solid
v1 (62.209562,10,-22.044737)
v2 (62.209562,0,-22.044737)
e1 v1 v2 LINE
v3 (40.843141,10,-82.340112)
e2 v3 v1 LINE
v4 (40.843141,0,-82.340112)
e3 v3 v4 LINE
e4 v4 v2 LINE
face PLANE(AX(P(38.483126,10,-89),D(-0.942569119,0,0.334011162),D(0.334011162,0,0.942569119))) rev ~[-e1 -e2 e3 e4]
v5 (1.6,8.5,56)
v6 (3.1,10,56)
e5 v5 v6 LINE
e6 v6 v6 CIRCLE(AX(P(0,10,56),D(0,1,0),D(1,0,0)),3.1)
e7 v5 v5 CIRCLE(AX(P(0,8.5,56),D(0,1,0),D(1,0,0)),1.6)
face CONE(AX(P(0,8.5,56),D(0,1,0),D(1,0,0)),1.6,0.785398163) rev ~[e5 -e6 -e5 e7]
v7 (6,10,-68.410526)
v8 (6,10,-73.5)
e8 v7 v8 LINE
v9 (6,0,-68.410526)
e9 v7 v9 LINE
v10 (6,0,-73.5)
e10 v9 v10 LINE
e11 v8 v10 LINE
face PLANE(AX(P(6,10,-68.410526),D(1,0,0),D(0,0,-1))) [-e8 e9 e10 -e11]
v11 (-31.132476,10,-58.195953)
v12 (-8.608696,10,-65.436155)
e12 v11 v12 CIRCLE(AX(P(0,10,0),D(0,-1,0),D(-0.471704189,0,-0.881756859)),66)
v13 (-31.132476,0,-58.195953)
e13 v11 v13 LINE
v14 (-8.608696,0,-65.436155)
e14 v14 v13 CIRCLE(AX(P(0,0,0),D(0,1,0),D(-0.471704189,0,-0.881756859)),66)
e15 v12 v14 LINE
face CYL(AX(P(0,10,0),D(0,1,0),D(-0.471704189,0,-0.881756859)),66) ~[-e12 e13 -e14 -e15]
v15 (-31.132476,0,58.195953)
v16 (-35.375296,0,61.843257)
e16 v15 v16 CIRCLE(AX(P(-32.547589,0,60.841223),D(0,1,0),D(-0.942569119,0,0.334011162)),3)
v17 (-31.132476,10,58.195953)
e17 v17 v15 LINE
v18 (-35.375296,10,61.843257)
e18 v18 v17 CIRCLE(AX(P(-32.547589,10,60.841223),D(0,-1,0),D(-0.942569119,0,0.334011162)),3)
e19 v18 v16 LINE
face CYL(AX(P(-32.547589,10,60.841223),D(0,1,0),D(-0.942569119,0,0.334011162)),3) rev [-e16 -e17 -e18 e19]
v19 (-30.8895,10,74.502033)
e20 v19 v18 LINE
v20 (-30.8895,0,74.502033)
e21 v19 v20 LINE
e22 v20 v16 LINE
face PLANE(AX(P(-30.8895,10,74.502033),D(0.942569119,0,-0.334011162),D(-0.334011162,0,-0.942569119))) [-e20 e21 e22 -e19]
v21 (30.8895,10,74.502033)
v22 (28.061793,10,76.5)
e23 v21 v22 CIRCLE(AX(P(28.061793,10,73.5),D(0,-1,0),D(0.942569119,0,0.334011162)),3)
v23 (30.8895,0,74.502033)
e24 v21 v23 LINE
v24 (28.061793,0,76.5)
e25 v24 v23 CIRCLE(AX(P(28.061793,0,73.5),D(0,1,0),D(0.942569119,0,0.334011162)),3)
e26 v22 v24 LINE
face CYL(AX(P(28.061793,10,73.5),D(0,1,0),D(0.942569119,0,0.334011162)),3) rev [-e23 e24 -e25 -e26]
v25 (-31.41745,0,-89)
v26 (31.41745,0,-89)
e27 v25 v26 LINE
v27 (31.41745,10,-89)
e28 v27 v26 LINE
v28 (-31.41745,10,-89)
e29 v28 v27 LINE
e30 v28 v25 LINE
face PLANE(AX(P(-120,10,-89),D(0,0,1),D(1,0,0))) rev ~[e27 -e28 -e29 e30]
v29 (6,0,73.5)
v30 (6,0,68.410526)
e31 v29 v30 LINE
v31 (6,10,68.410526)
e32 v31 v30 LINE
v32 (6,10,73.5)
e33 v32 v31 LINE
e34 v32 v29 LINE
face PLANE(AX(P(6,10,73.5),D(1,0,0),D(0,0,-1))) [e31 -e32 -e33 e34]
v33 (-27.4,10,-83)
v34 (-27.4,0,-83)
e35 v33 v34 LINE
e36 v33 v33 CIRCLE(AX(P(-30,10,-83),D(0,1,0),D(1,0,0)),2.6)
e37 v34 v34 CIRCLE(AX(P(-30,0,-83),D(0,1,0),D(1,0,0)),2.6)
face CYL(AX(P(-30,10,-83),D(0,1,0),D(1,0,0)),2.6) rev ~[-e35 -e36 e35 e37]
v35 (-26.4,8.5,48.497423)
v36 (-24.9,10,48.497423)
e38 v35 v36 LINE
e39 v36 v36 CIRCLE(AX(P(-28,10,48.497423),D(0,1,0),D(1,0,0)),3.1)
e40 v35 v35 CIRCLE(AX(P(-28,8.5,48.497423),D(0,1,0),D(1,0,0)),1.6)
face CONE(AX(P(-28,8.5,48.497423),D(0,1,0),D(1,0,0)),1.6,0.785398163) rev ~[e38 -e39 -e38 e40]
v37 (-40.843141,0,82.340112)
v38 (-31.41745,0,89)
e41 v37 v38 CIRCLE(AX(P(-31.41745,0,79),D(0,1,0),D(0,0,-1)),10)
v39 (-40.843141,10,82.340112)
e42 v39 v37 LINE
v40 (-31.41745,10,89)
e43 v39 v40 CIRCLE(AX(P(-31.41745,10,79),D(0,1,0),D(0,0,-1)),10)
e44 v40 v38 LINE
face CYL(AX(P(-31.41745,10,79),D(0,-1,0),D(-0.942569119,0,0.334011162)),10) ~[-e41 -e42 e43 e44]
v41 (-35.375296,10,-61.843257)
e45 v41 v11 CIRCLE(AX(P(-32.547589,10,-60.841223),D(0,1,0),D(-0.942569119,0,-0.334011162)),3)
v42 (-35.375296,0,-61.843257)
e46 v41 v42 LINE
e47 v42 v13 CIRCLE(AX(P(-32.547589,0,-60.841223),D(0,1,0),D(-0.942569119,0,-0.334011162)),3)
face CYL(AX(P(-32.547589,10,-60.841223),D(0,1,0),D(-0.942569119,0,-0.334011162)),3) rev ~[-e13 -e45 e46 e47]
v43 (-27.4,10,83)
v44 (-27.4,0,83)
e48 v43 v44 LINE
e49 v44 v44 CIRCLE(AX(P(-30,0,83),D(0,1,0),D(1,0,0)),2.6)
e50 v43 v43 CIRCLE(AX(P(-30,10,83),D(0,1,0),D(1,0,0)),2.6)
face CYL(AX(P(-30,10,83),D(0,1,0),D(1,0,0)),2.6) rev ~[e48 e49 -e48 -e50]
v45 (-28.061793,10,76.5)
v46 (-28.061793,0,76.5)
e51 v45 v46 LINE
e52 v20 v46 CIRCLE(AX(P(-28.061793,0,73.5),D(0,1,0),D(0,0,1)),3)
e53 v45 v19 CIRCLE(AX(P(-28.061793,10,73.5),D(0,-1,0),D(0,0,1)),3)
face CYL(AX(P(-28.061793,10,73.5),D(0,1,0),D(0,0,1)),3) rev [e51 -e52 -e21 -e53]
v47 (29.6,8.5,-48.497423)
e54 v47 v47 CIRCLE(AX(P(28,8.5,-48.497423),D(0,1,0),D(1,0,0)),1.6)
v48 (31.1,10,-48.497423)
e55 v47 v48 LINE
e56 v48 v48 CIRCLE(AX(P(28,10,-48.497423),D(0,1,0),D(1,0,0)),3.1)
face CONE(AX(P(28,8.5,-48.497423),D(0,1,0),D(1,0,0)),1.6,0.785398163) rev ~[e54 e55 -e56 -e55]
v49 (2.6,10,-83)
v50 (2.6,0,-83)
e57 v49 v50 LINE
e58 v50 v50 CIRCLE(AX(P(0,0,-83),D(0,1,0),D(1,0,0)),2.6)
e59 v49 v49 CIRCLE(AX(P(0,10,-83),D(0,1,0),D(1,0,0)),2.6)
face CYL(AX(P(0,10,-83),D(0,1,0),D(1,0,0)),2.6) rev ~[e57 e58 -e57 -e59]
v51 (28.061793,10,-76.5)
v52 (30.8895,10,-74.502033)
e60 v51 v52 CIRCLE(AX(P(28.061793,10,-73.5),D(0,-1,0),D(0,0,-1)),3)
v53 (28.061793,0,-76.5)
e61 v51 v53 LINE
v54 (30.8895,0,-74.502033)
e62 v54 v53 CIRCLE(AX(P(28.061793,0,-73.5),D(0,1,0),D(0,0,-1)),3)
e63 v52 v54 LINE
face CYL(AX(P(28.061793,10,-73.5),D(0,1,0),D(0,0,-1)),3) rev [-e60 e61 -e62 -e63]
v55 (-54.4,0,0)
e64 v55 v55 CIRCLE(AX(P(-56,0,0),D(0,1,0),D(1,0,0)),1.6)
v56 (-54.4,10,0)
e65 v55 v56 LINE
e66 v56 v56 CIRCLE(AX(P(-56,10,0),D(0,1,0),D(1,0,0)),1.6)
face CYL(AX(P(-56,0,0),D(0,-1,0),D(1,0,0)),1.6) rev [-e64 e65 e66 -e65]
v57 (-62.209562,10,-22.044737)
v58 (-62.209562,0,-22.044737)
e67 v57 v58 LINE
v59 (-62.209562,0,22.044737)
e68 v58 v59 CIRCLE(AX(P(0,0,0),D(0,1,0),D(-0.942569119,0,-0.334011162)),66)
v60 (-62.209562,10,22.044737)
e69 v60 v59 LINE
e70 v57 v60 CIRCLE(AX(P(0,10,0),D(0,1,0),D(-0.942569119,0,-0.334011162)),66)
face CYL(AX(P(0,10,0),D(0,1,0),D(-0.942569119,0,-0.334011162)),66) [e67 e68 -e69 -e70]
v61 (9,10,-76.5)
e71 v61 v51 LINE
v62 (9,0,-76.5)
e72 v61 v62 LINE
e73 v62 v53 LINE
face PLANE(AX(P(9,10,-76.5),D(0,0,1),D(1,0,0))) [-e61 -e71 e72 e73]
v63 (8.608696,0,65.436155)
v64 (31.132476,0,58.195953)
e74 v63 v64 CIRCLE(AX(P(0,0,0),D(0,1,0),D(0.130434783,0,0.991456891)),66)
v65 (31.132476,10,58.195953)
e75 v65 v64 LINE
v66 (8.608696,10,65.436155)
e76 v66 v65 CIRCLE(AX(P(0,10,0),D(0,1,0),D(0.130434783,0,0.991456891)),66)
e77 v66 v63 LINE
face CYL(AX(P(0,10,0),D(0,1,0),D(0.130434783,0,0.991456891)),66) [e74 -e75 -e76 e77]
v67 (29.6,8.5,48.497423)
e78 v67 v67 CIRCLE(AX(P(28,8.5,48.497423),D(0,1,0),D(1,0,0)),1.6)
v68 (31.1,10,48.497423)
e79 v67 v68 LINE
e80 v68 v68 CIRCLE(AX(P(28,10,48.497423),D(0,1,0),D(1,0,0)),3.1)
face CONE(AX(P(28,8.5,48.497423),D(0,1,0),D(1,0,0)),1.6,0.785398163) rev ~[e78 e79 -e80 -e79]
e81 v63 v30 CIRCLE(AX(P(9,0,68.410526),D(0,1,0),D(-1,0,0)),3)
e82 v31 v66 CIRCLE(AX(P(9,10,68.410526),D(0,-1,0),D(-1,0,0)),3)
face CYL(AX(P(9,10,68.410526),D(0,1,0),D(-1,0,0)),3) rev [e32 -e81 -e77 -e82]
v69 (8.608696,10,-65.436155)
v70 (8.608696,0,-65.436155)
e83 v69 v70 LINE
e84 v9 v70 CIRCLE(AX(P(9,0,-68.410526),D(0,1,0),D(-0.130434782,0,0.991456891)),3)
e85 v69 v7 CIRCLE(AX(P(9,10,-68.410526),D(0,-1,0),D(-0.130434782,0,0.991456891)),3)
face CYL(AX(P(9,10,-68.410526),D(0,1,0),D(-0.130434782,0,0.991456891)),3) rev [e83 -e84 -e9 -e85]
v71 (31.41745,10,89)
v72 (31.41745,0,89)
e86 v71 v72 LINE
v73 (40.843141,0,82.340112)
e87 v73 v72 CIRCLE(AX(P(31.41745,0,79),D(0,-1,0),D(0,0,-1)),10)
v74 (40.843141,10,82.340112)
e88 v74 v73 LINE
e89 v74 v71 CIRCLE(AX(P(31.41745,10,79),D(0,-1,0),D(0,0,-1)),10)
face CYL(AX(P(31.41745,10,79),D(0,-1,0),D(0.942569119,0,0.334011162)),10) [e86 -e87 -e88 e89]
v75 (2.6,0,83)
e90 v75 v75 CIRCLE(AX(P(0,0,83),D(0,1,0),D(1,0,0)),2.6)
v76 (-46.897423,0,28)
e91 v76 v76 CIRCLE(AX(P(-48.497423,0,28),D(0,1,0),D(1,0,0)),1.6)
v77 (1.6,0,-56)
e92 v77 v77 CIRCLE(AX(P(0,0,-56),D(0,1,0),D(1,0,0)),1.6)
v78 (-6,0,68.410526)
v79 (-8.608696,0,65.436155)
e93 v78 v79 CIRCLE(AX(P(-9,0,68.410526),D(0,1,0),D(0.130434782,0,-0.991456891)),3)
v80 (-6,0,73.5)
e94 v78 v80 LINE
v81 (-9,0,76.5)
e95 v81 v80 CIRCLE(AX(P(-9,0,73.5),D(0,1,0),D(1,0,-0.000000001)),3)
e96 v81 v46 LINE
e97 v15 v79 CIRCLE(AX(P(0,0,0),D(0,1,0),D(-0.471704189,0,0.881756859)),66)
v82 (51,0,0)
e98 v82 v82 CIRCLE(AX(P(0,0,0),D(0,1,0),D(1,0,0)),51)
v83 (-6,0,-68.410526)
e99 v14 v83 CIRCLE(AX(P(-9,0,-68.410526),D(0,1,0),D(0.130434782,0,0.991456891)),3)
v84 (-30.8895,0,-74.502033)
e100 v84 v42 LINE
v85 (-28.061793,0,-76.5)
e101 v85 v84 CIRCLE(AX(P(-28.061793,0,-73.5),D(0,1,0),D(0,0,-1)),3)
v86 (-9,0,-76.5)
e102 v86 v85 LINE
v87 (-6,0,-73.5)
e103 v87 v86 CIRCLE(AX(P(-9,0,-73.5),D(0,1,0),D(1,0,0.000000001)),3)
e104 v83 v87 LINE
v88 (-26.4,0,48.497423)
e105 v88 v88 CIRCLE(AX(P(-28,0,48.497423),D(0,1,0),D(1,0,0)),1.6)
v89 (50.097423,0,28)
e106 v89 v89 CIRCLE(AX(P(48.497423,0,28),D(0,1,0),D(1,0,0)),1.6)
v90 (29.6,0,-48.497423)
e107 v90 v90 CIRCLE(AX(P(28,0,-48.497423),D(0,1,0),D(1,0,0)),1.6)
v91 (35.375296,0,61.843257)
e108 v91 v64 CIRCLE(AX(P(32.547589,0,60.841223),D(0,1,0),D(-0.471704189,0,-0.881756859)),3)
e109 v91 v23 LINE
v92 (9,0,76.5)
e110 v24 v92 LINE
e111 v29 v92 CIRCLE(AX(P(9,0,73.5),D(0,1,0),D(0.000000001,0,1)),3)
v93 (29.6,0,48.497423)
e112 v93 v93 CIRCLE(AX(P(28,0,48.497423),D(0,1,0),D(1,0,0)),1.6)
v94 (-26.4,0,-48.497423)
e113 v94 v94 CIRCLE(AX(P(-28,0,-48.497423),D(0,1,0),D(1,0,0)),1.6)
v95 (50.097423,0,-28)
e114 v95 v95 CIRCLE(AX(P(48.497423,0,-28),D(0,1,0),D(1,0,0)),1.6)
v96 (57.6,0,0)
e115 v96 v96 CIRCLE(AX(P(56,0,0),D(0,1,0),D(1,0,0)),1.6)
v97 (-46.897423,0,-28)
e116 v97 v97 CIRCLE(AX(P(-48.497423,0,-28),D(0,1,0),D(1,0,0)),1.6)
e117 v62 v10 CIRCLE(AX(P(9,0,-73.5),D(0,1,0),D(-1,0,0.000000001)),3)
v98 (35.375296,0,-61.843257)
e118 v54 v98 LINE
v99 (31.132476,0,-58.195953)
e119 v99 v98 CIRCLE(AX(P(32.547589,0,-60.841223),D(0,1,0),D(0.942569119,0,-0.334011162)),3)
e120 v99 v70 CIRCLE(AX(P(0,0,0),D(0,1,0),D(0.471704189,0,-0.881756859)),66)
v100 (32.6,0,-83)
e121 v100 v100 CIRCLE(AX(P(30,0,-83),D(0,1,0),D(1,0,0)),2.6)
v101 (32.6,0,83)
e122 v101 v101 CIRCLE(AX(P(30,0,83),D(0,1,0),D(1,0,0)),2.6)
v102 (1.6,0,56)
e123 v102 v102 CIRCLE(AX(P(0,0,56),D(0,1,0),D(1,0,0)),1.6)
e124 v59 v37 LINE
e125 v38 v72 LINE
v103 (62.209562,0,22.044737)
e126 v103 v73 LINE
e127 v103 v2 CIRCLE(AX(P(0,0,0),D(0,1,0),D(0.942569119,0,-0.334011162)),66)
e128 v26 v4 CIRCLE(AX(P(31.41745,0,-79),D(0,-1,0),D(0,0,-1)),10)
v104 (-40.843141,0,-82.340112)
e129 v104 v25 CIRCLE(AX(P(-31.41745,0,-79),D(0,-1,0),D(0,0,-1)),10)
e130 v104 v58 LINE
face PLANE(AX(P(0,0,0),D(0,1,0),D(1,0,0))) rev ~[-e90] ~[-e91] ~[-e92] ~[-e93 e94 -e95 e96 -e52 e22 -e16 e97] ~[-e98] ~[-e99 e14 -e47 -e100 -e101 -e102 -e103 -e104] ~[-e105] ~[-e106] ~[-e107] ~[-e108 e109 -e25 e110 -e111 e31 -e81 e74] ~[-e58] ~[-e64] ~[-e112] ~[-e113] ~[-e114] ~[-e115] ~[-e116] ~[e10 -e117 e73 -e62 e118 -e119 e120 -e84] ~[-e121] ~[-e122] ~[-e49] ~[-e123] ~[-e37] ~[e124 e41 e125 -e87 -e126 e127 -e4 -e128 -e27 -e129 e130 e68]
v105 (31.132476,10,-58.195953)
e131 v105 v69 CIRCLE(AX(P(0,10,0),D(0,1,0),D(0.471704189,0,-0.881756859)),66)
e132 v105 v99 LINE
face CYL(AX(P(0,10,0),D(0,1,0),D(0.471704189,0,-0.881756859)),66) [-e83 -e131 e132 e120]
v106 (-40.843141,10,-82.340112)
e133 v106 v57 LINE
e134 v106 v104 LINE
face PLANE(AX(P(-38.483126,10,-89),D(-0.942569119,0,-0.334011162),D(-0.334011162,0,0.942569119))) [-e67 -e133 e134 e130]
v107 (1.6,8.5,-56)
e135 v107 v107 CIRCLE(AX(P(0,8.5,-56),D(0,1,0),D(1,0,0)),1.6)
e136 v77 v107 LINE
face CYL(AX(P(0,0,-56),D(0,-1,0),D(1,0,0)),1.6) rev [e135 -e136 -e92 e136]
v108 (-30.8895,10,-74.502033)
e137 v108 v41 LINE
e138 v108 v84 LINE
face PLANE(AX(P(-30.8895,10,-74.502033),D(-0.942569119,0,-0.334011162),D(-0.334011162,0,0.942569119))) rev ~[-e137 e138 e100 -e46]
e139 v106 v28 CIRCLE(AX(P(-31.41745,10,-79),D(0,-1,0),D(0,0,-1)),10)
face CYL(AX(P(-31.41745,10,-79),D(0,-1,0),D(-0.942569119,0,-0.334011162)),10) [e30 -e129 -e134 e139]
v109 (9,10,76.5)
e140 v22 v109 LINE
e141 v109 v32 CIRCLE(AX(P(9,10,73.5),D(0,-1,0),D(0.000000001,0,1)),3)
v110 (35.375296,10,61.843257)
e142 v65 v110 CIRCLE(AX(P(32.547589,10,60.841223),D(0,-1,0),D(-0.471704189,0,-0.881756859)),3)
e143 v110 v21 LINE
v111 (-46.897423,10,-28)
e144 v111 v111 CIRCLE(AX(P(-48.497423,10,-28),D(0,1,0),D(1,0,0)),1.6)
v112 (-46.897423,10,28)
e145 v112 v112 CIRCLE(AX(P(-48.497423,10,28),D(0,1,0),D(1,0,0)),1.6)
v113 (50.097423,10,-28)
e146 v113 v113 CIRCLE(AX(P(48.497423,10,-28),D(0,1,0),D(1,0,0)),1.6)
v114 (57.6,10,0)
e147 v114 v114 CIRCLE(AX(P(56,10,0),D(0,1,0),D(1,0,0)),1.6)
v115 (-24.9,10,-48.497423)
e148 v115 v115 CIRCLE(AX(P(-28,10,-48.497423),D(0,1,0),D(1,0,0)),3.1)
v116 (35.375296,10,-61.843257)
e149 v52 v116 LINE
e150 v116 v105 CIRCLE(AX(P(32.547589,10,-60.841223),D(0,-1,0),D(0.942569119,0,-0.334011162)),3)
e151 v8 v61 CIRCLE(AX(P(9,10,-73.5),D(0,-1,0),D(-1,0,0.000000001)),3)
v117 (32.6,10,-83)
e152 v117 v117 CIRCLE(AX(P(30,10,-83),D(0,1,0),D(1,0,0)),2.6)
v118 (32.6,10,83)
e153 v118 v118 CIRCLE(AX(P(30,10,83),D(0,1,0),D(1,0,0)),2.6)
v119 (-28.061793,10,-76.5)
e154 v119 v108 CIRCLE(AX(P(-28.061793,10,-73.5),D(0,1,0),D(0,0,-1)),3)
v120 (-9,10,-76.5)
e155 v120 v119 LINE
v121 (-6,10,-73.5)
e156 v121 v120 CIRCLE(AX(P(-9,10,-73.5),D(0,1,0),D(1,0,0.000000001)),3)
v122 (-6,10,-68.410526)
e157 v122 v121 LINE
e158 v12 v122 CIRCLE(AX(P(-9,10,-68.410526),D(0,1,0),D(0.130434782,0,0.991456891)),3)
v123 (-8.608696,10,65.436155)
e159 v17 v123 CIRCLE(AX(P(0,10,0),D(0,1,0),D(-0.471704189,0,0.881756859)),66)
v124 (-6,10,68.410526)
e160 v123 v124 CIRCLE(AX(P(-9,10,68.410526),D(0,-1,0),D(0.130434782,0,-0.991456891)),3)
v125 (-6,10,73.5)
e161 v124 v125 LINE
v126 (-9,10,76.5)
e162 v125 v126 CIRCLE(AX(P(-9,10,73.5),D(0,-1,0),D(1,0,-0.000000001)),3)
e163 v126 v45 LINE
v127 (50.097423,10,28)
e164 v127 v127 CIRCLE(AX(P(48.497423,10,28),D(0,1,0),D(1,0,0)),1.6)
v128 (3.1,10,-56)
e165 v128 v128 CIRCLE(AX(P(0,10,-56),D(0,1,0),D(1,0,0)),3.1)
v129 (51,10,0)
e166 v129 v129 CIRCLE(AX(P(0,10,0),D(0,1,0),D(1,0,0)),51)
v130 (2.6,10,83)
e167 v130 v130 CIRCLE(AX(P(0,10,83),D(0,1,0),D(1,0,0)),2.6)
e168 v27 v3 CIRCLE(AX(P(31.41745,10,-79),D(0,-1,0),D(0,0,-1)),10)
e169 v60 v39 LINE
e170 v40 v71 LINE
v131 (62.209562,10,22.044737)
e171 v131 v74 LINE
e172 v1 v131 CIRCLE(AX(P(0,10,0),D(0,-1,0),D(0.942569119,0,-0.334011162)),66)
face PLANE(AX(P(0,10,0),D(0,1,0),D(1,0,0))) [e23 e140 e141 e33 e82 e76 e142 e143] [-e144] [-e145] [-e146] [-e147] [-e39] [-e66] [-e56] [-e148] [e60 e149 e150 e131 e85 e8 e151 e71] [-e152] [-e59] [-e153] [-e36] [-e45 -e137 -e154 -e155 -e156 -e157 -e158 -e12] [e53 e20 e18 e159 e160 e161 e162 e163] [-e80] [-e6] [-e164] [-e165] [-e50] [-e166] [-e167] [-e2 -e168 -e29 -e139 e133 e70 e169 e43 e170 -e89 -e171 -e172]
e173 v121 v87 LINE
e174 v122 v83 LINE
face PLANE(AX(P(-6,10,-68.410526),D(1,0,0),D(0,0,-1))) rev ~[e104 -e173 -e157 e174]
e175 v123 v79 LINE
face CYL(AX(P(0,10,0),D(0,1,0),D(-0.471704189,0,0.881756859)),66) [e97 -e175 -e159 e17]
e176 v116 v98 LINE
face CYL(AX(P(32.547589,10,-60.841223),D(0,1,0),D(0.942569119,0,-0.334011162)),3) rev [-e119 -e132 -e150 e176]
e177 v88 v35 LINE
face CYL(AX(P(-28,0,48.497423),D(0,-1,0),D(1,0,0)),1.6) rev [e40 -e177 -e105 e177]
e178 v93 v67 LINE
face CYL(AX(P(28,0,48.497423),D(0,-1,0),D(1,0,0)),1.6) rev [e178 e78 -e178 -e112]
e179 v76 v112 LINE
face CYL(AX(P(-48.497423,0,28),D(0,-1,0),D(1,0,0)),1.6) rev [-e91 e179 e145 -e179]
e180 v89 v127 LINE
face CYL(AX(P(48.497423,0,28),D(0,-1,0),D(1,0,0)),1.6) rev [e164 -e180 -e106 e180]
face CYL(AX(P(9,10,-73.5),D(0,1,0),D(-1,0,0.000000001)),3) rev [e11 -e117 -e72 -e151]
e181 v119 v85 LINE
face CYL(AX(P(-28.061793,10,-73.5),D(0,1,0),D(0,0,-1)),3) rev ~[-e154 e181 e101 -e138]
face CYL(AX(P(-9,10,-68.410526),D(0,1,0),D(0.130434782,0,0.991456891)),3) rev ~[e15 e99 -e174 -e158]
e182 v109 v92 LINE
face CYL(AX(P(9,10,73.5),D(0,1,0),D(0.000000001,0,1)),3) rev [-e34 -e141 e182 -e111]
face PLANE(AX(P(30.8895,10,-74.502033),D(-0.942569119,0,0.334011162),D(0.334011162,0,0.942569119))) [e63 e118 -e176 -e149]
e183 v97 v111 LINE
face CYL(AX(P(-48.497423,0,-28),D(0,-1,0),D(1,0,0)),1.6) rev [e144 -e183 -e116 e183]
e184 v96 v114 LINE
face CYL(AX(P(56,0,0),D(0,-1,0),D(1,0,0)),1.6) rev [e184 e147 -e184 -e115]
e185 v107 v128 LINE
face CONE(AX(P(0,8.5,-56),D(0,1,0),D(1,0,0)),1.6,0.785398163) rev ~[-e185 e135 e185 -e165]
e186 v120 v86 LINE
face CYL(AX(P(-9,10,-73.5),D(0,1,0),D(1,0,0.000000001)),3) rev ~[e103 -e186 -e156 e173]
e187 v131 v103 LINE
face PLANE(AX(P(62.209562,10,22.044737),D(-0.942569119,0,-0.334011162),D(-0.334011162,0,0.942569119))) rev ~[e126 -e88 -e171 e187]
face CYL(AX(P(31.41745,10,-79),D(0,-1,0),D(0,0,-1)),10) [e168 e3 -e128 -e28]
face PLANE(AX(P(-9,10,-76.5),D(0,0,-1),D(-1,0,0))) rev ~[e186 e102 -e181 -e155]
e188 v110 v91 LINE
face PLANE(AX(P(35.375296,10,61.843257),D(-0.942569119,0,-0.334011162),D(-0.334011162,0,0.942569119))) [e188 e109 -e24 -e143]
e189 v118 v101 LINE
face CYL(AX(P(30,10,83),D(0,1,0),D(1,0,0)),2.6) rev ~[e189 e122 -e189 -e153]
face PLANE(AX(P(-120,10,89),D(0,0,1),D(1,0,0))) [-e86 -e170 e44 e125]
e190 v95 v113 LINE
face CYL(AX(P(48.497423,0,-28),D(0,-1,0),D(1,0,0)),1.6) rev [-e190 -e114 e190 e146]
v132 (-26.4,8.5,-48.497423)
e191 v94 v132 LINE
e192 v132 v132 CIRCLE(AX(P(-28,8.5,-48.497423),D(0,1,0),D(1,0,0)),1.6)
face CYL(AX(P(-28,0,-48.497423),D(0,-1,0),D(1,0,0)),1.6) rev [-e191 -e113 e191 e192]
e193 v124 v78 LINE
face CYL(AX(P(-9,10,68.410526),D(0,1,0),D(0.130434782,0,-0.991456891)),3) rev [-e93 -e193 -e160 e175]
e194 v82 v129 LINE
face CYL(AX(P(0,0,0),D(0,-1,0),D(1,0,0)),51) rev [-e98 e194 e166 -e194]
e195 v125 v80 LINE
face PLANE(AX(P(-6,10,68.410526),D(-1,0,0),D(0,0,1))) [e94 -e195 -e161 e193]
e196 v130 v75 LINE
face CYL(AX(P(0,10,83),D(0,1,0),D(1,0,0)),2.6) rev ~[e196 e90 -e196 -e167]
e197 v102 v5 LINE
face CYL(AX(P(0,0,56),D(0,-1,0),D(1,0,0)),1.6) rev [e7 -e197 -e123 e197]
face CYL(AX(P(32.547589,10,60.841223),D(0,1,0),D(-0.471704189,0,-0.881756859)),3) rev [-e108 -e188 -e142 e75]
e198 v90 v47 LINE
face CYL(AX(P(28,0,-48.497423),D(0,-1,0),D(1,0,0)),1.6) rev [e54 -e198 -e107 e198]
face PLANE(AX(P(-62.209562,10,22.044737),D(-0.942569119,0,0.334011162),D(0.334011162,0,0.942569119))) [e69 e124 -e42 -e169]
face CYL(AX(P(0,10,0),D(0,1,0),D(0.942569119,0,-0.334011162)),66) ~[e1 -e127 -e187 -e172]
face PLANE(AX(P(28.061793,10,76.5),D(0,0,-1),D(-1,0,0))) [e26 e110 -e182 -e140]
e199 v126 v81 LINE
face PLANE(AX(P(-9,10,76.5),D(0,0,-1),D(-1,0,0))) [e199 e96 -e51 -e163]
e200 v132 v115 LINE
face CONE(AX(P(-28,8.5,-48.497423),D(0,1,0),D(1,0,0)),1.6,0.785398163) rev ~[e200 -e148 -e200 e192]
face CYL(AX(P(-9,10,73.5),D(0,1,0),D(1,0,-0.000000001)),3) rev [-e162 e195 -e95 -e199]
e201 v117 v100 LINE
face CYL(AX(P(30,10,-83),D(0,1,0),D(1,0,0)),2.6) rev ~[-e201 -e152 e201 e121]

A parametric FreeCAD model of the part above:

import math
import FreeCAD as App
import Part
import Sketcher
Q = App.Units.Quantity


def edges_at(feature, points):
    """Names of the edges that pass closest to the given points."""
    edges = feature.Shape.Edges
    near = lambda p: min(range(len(edges)), key=lambda i: edges[i].distToShape(Part.Vertex(*p))[0])
    return sorted({f"Edge{near(p) + 1}" for p in points})


def add_polygon(sketch, points):
    """Adds a closed chain of lines whose ends are joined by coincident constraints."""
    first, n = sketch.GeometryCount, len(points)
    for a, b in zip(points, points[1:] + points[:1]):
        sketch.addGeometry(Part.LineSegment(App.Vector(*a, 0), App.Vector(*b, 0)), False)
    for i in range(n):
        sketch.addConstraint(Sketcher.Constraint("Coincident", first + i, 2, first + (i + 1) % n, 1))

doc = App.newDocument("Part")
params = doc.addObject("Spreadsheet::Sheet", "Params")
for row, (alias, value) in enumerate([
    ("sketch1_diameter", "102 mm"),
    ("sketch1_diameter2", "4.2 mm"),
    ("sketch1_diameter3", "3.2 mm"),
    ("sketch1_diameter4", "2.5 mm"),
    ("sketch1_width", "240 mm"),
    ("pad1_length", "10 mm"),
    ("sketch2_height", "115 mm"),
    ("sketch2_height2", "95 mm"),
    ("sketch3_diameter", "5.2 mm"),
    ("sketch3_width", "240 mm"),
    ("sketch3_height", "1 mm"),
    ("sketch4_radius", "66 mm"),
    ("sketch4_height", "178 mm"),
    ("fillet_radius", "10 mm"),
    ("sketch5_radius", "3 mm"),
    ("sketch5_radius2", "66 mm"),
    ("chamfer_size", "1.5 mm"),
], start=1):
    params.set(f"A{row}", alias)
    params.set(f"B{row}", "=" + value)
    params.setAlias(f"B{row}", alias)

body = doc.addObject("PartDesign::Body", "Body")

# Sketch on XZ plane
sketch1 = body.newObject("Sketcher::SketchObject", "Sketch")
sketch1.AttachmentSupport = (doc.getObject("XZ_Plane"), [""])
sketch1.MapMode = "FlatFace"
add_polygon(sketch1, [(-120, -90), (-120, 90), (120, 90), (120, -90)])  # lines 0-3
sketch1.addGeometry(Part.Circle(App.Vector(-70, 85, 0), App.Vector(0, 0, 1), 2.1), False)  # 4
sketch1.addGeometry(Part.Circle(App.Vector(-70, 65, 0), App.Vector(0, 0, 1), 2.1), False)  # 5
sketch1.addGeometry(Part.Circle(App.Vector(-50, 85, 0), App.Vector(0, 0, 1), 2.1), False)  # 6
sketch1.addGeometry(Part.Circle(App.Vector(-50, 65, 0), App.Vector(0, 0, 1), 2.1), False)  # 7
sketch1.addGeometry(Part.Circle(App.Vector(-28, 48.5, 0), App.Vector(0, 0, 1), 1.6), False)  # 8
sketch1.addGeometry(Part.Circle(App.Vector(-112, 30, 0), App.Vector(0, 0, 1), 1.2), False)  # 9
sketch1.addGeometry(Part.Circle(App.Vector(-112, 10, 0), App.Vector(0, 0, 1), 1.2), False)  # 10
sketch1.addGeometry(Part.Circle(App.Vector(-48.5, 28, 0), App.Vector(0, 0, 1), 1.6), False)  # 11
sketch1.addGeometry(Part.Circle(App.Vector(50, 85, 0), App.Vector(0, 0, 1), 2.1), False)  # 12
sketch1.addGeometry(Part.Circle(App.Vector(0, 56, 0), App.Vector(0, 0, 1), 1.6), False)  # 13
sketch1.addGeometry(Part.Circle(App.Vector(28, 48.5, 0), App.Vector(0, 0, 1), 1.6), False)  # 14
sketch1.addGeometry(Part.Circle(App.Vector(50, 65, 0), App.Vector(0, 0, 1), 2.1), False)  # 15
sketch1.addGeometry(Part.Circle(App.Vector(70, 85, 0), App.Vector(0, 0, 1), 2.1), False)  # 16
sketch1.addGeometry(Part.Circle(App.Vector(70, 65, 0), App.Vector(0, 0, 1), 2.1), False)  # 17
sketch1.addGeometry(Part.Circle(App.Vector(48.5, 28, 0), App.Vector(0, 0, 1), 1.6), False)  # 18
sketch1.addGeometry(Part.Circle(App.Vector(112, 30, 0), App.Vector(0, 0, 1), 1.2), False)  # 19
sketch1.addGeometry(Part.Circle(App.Vector(112, 10, 0), App.Vector(0, 0, 1), 1.2), False)  # 20
sketch1.addGeometry(Part.Circle(App.Vector(-112, -10, 0), App.Vector(0, 0, 1), 1.2), False)  # 21
sketch1.addGeometry(Part.Circle(App.Vector(-112, -30, 0), App.Vector(0, 0, 1), 1.2), False)  # 22
sketch1.addGeometry(Part.Circle(App.Vector(-56, 0, 0), App.Vector(0, 0, 1), 1.6), False)  # 23
sketch1.addGeometry(Part.Circle(App.Vector(-48.5, -28, 0), App.Vector(0, 0, 1), 1.6), False)  # 24
sketch1.addGeometry(Part.Circle(App.Vector(-70, -65, 0), App.Vector(0, 0, 1), 2.1), False)  # 25
sketch1.addGeometry(Part.Circle(App.Vector(-70, -85, 0), App.Vector(0, 0, 1), 2.1), False)  # 26
sketch1.addGeometry(Part.Circle(App.Vector(-50, -65, 0), App.Vector(0, 0, 1), 2.1), False)  # 27
sketch1.addGeometry(Part.Circle(App.Vector(-28, -48.5, 0), App.Vector(0, 0, 1), 1.6), False)  # 28
sketch1.addGeometry(Part.Circle(App.Vector(-50, -85, 0), App.Vector(0, 0, 1), 2.1), False)  # 29
sketch1.addGeometry(Part.Circle(App.Vector(0, 0, 0), App.Vector(0, 0, 1), 51), False)  # 30
sketch1.addGeometry(Part.Circle(App.Vector(56, 0, 0), App.Vector(0, 0, 1), 1.6), False)  # 31
sketch1.addGeometry(Part.Circle(App.Vector(48.5, -28, 0), App.Vector(0, 0, 1), 1.6), False)  # 32
sketch1.addGeometry(Part.Circle(App.Vector(112, -10, 0), App.Vector(0, 0, 1), 1.2), False)  # 33
sketch1.addGeometry(Part.Circle(App.Vector(112, -30, 0), App.Vector(0, 0, 1), 1.2), False)  # 34
sketch1.addGeometry(Part.Circle(App.Vector(28, -48.5, 0), App.Vector(0, 0, 1), 1.6), False)  # 35
sketch1.addGeometry(Part.Circle(App.Vector(0, -56, 0), App.Vector(0, 0, 1), 1.6), False)  # 36
sketch1.addGeometry(Part.Circle(App.Vector(50, -65, 0), App.Vector(0, 0, 1), 2.1), False)  # 37
sketch1.addGeometry(Part.Circle(App.Vector(50, -85, 0), App.Vector(0, 0, 1), 2.1), False)  # 38
sketch1.addGeometry(Part.Circle(App.Vector(70, -65, 0), App.Vector(0, 0, 1), 2.1), False)  # 39
sketch1.addGeometry(Part.Circle(App.Vector(70, -85, 0), App.Vector(0, 0, 1), 2.1), False)  # 40
sketch1.addConstraint(Sketcher.Constraint("Vertical", 0))
sketch1.addConstraint(Sketcher.Constraint("Horizontal", 1))
sketch1.addConstraint(Sketcher.Constraint("Vertical", 2))
sketch1.addConstraint(Sketcher.Constraint("Horizontal", 3))
sketch1.addConstraint(Sketcher.Constraint("Coincident", 30, 3, -1, 1))
sketch1.addConstraint(Sketcher.Constraint("Equal", 4, 5))
sketch1.addConstraint(Sketcher.Constraint("Equal", 5, 6))
sketch1.addConstraint(Sketcher.Constraint("Equal", 6, 7))
sketch1.addConstraint(Sketcher.Constraint("Equal", 9, 10))
sketch1.addConstraint(Sketcher.Constraint("Equal", 8, 11))
sketch1.addConstraint(Sketcher.Constraint("Equal", 7, 12))
sketch1.addConstraint(Sketcher.Constraint("Equal", 11, 13))
sketch1.addConstraint(Sketcher.Constraint("Equal", 13, 14))
sketch1.addConstraint(Sketcher.Constraint("Equal", 12, 15))
sketch1.addConstraint(Sketcher.Constraint("Equal", 15, 16))
sketch1.addConstraint(Sketcher.Constraint("Equal", 16, 17))
sketch1.addConstraint(Sketcher.Constraint("Equal", 14, 18))
sketch1.addConstraint(Sketcher.Constraint("Equal", 10, 19))
sketch1.addConstraint(Sketcher.Constraint("Equal", 19, 20))
sketch1.addConstraint(Sketcher.Constraint("Equal", 20, 21))
sketch1.addConstraint(Sketcher.Constraint("Equal", 21, 22))
sketch1.addConstraint(Sketcher.Constraint("Equal", 18, 23))
sketch1.addConstraint(Sketcher.Constraint("Equal", 23, 24))
sketch1.addConstraint(Sketcher.Constraint("Equal", 17, 25))
sketch1.addConstraint(Sketcher.Constraint("Equal", 25, 26))
sketch1.addConstraint(Sketcher.Constraint("Equal", 26, 27))
sketch1.addConstraint(Sketcher.Constraint("Equal", 24, 28))
sketch1.addConstraint(Sketcher.Constraint("Equal", 27, 29))
sketch1.addConstraint(Sketcher.Constraint("Equal", 28, 31))
sketch1.addConstraint(Sketcher.Constraint("Equal", 31, 32))
sketch1.addConstraint(Sketcher.Constraint("Equal", 22, 33))
sketch1.addConstraint(Sketcher.Constraint("Equal", 33, 34))
sketch1.addConstraint(Sketcher.Constraint("Equal", 32, 35))
sketch1.addConstraint(Sketcher.Constraint("Equal", 35, 36))
sketch1.addConstraint(Sketcher.Constraint("Equal", 29, 37))
sketch1.addConstraint(Sketcher.Constraint("Equal", 37, 38))
sketch1.addConstraint(Sketcher.Constraint("Equal", 38, 39))
sketch1.addConstraint(Sketcher.Constraint("Equal", 39, 40))
sketch1.addConstraint(Sketcher.Constraint("Symmetric", 20, 3, 21, 3, -1, 1))
sketch1.addConstraint(Sketcher.Constraint("Symmetric", 19, 3, 22, 3, -1, 1))
sketch1.addConstraint(Sketcher.Constraint("Symmetric", 18, 3, 24, 3, -1, 1))
sketch1.addConstraint(Sketcher.Constraint("Symmetric", 17, 3, 25, 3, -1, 1))
sketch1.addConstraint(Sketcher.Constraint("Symmetric", 16, 3, 26, 3, -1, 1))
sketch1.addConstraint(Sketcher.Constraint("Symmetric", 15, 3, 27, 3, -1, 1))
sketch1.addConstraint(Sketcher.Constraint("Symmetric", 14, 3, 28, 3, -1, 1))
sketch1.addConstraint(Sketcher.Constraint("Symmetric", 12, 3, 29, 3, -1, 1))
sketch1.addConstraint(Sketcher.Constraint("Symmetric", 23, 3, 31, 3, -1, 1))
sketch1.addConstraint(Sketcher.Constraint("Symmetric", 11, 3, 32, 3, -1, 1))
sketch1.addConstraint(Sketcher.Constraint("Symmetric", 10, 3, 33, 3, -1, 1))
sketch1.addConstraint(Sketcher.Constraint("Symmetric", 9, 3, 34, 3, -1, 1))
sketch1.addConstraint(Sketcher.Constraint("Symmetric", 8, 3, 35, 3, -1, 1))
sketch1.addConstraint(Sketcher.Constraint("Symmetric", 13, 3, 36, 3, -1, 1))
sketch1.addConstraint(Sketcher.Constraint("Symmetric", 7, 3, 37, 3, -1, 1))
sketch1.addConstraint(Sketcher.Constraint("Symmetric", 6, 3, 38, 3, -1, 1))
sketch1.addConstraint(Sketcher.Constraint("Symmetric", 5, 3, 39, 3, -1, 1))
sketch1.addConstraint(Sketcher.Constraint("Symmetric", 4, 3, 40, 3, -1, 1))
sketch1.addConstraint(Sketcher.Constraint("Symmetric", 0, 2, 2, 2, -1, 1))
sketch1.addConstraint(Sketcher.Constraint("Symmetric", 6, 3, 12, 3, -2))
sketch1.addConstraint(Sketcher.Constraint("Symmetric", 8, 3, 14, 3, -2))
sketch1.addConstraint(Sketcher.Constraint("Symmetric", 7, 3, 15, 3, -2))
sketch1.addConstraint(Sketcher.Constraint("Symmetric", 4, 3, 16, 3, -2))
sketch1.addConstraint(Sketcher.Constraint("Symmetric", 5, 3, 17, 3, -2))
sketch1.addConstraint(Sketcher.Constraint("Symmetric", 11, 3, 18, 3, -2))
sketch1.addConstraint(Sketcher.Constraint("Symmetric", 9, 3, 19, 3, -2))
sketch1.addConstraint(Sketcher.Constraint("Symmetric", 10, 3, 20, 3, -2))
sketch1.addConstraint(Sketcher.Constraint("PointOnObject", 13, 3, -2))
sketch1.addConstraint(Sketcher.Constraint("PointOnObject", 23, 3, -1))
sketch1.addConstraint(Sketcher.Constraint("Horizontal", 4, 3, 6, 3))
sketch1.addConstraint(Sketcher.Constraint("Horizontal", 5, 3, 7, 3))
sketch1.addConstraint(Sketcher.Constraint("Vertical", 4, 3, 5, 3))
sketch1.addConstraint(Sketcher.Constraint("Vertical", 6, 3, 7, 3))
sketch1.addConstraint(Sketcher.Constraint("Vertical", 9, 3, 10, 3))
sketch1.addConstraint(Sketcher.Constraint("Diameter", 30, Q("102 mm")))
sketch1.addConstraint(Sketcher.Constraint("Diameter", 4, Q("4.2 mm")))
sketch1.addConstraint(Sketcher.Constraint("Diameter", 8, Q("3.2 mm")))
sketch1.addConstraint(Sketcher.Constraint("Diameter", 9, Q("2.5 mm")))
sketch1.addConstraint(Sketcher.Constraint("DistanceX", 1, 1, 1, 2, Q("240 mm")))
sketch1.addConstraint(Sketcher.Constraint("DistanceY", 0, 1, 0, 2, Q("180 mm")))
sketch1.addConstraint(Sketcher.Constraint("DistanceX", 4, 3, -1, 1, Q("70 mm")))
sketch1.addConstraint(Sketcher.Constraint("DistanceY", -1, 1, 4, 3, Q("85 mm")))
sketch1.addConstraint(Sketcher.Constraint("DistanceY", -1, 1, 5, 3, Q("65 mm")))
sketch1.addConstraint(Sketcher.Constraint("DistanceX", 6, 3, -1, 1, Q("50 mm")))
sketch1.addConstraint(Sketcher.Constraint("DistanceX", 8, 3, -1, 1, Q("28 mm")))
sketch1.addConstraint(Sketcher.Constraint("DistanceX", 9, 3, -1, 1, Q("112 mm")))
sketch1.addConstraint(Sketcher.Constraint("DistanceY", -1, 1, 9, 3, Q("30 mm")))
sketch1.addConstraint(Sketcher.Constraint("DistanceY", -1, 1, 10, 3, Q("10 mm")))
sketch1.addConstraint(Sketcher.Constraint("DistanceY", -1, 1, 11, 3, Q("28 mm")))
sketch1.addConstraint(Sketcher.Constraint("DistanceY", -1, 1, 13, 3, Q("56 mm")))
sketch1.addConstraint(Sketcher.Constraint("DistanceX", 23, 3, -1, 1, Q("56 mm")))
sketch1.addConstraint(Sketcher.Constraint("DistanceY", -1, 1, 8, 3, Q("48.497423 mm")))
sketch1.addConstraint(Sketcher.Constraint("DistanceX", 11, 3, -1, 1, Q("48.497423 mm")))
sketch1.setExpression("Constraints[76]", "Params.sketch1_diameter")
sketch1.setExpression("Constraints[77]", "Params.sketch1_diameter2")
sketch1.setExpression("Constraints[78]", "Params.sketch1_diameter3")
sketch1.setExpression("Constraints[79]", "Params.sketch1_diameter4")
sketch1.setExpression("Constraints[80]", "Params.sketch1_width")
pad1 = body.newObject("PartDesign::Pad", "Pad")
pad1.Profile = sketch1
pad1.setExpression("Length", "Params.pad1_length")
pad1.Reversed = True

# Sketch on XZ plane
sketch2 = body.newObject("Sketcher::SketchObject", "Sketch001")
sketch2.AttachmentSupport = (doc.getObject("XZ_Plane"), [""])
sketch2.MapMode = "FlatFace"
sketch2.AttachmentOffset = App.Placement(App.Vector(0, 0, -10), App.Rotation())
add_polygon(sketch2, [(-110, -47.5), (-120, -57.5), (-120, 57.5), (-110, 47.5)])  # lines 0-3
add_polygon(sketch2, [(110, 47.5), (120, 57.5), (120, -57.5), (110, -47.5)])  # lines 4-7
sketch2.addConstraint(Sketcher.Constraint("Vertical", 1))
sketch2.addConstraint(Sketcher.Constraint("Vertical", 3))
sketch2.addConstraint(Sketcher.Constraint("Vertical", 5))
sketch2.addConstraint(Sketcher.Constraint("Vertical", 7))
sketch2.addConstraint(Sketcher.Constraint("Symmetric", 0, 2, 4, 2, -1, 1))
sketch2.addConstraint(Sketcher.Constraint("Symmetric", 2, 2, 6, 2, -1, 1))
sketch2.addConstraint(Sketcher.Constraint("Perpendicular", 0, 2))
sketch2.addConstraint(Sketcher.Constraint("Perpendicular", 2, 4))
sketch2.addConstraint(Sketcher.Constraint("Perpendicular", 4, 6))
sketch2.addConstraint(Sketcher.Constraint("Horizontal", 1, 2, 4, 2))
sketch2.addConstraint(Sketcher.Constraint("Horizontal", 3, 2, 6, 2))
sketch2.addConstraint(Sketcher.Constraint("DistanceY", 1, 1, 1, 2, Q("115 mm")))
sketch2.addConstraint(Sketcher.Constraint("DistanceY", 3, 2, 3, 1, Q("95 mm")))
sketch2.addConstraint(Sketcher.Constraint("DistanceX", 0, 2, -1, 1, Q("120 mm")))
sketch2.setExpression("Constraints[19]", "Params.sketch2_height")
sketch2.setExpression("Constraints[20]", "Params.sketch2_height2")
pocket1 = body.newObject("PartDesign::Pocket", "Pocket")
pocket1.Profile = sketch2
pocket1.Type = "ThroughAll"
pocket1.Reversed = True

# Sketch on XZ plane
sketch3 = body.newObject("Sketcher::SketchObject", "Sketch002")
sketch3.AttachmentSupport = (doc.getObject("XZ_Plane"), [""])
sketch3.MapMode = "FlatFace"
sketch3.AttachmentOffset = App.Placement(App.Vector(0, 0, -10), App.Rotation())
sketch3.addGeometry(Part.Circle(App.Vector(-30, -83, 0), App.Vector(0, 0, 1), 2.6), False)  # 0
sketch3.addGeometry(Part.Circle(App.Vector(0, -83, 0), App.Vector(0, 0, 1), 2.6), False)  # 1
sketch3.addGeometry(Part.Circle(App.Vector(30, -83, 0), App.Vector(0, 0, 1), 2.6), False)  # 2
sketch3.addGeometry(Part.Circle(App.Vector(30, 83, 0), App.Vector(0, 0, 1), 2.6), False)  # 3
sketch3.addGeometry(Part.Circle(App.Vector(0, 83, 0), App.Vector(0, 0, 1), 2.6), False)  # 4
sketch3.addGeometry(Part.Circle(App.Vector(-30, 83, 0), App.Vector(0, 0, 1), 2.6), False)  # 5
add_polygon(sketch3, [(-120, -90), (-120, -89), (120, -89), (120, -90)])  # lines 6-9
add_polygon(sketch3, [(-120, 89), (-120, 90), (120, 90), (120, 89)])  # lines 10-13
sketch3.addConstraint(Sketcher.Constraint("Vertical", 6))
sketch3.addConstraint(Sketcher.Constraint("Horizontal", 7))
sketch3.addConstraint(Sketcher.Constraint("Vertical", 8))
sketch3.addConstraint(Sketcher.Constraint("Horizontal", 9))
sketch3.addConstraint(Sketcher.Constraint("Vertical", 10))
sketch3.addConstraint(Sketcher.Constraint("Horizontal", 11))
sketch3.addConstraint(Sketcher.Constraint("Vertical", 12))
sketch3.addConstraint(Sketcher.Constraint("Horizontal", 13))
sketch3.addConstraint(Sketcher.Constraint("Equal", 0, 1))
sketch3.addConstraint(Sketcher.Constraint("Equal", 1, 2))
sketch3.addConstraint(Sketcher.Constraint("Equal", 2, 3))
sketch3.addConstraint(Sketcher.Constraint("Equal", 3, 4))
sketch3.addConstraint(Sketcher.Constraint("Equal", 4, 5))
sketch3.addConstraint(Sketcher.Constraint("Symmetric", 0, 3, 3, 3, -1, 1))
sketch3.addConstraint(Sketcher.Constraint("Symmetric", 1, 3, 4, 3, -1, 1))
sketch3.addConstraint(Sketcher.Constraint("Symmetric", 2, 3, 5, 3, -1, 1))
sketch3.addConstraint(Sketcher.Constraint("Symmetric", 8, 2, 10, 2, -1, 1))
sketch3.addConstraint(Sketcher.Constraint("Symmetric", 6, 2, 12, 2, -1, 1))
sketch3.addConstraint(Sketcher.Constraint("Symmetric", 0, 3, 2, 3, -2))
sketch3.addConstraint(Sketcher.Constraint("PointOnObject", 1, 3, -2))
sketch3.addConstraint(Sketcher.Constraint("Horizontal", 0, 3, 1, 3))
sketch3.addConstraint(Sketcher.Constraint("Vertical", 9, 2, 10, 2))
sketch3.addConstraint(Sketcher.Constraint("Diameter", 0, Q("5.2 mm")))
sketch3.addConstraint(Sketcher.Constraint("DistanceX", 7, 1, 7, 2, Q("240 mm")))
sketch3.addConstraint(Sketcher.Constraint("DistanceY", 6, 1, 6, 2, Q("1 mm")))
sketch3.addConstraint(Sketcher.Constraint("DistanceX", 0, 3, -1, 1, Q("30 mm")))
sketch3.addConstraint(Sketcher.Constraint("DistanceY", 0, 3, -1, 1, Q("83 mm")))
sketch3.addConstraint(Sketcher.Constraint("DistanceY", 6, 2, -1, 1, Q("89 mm")))
sketch3.setExpression("Constraints[30]", "Params.sketch3_diameter")
sketch3.setExpression("Constraints[31]", "Params.sketch3_width")
sketch3.setExpression("Constraints[32]", "Params.sketch3_height")
pocket2 = body.newObject("PartDesign::Pocket", "Pocket001")
pocket2.Profile = sketch3
pocket2.Type = "ThroughAll"
pocket2.Reversed = True

# Sketch on XZ plane
sketch4 = body.newObject("Sketcher::SketchObject", "Sketch003")
sketch4.AttachmentSupport = (doc.getObject("XZ_Plane"), [""])
sketch4.MapMode = "FlatFace"
sketch4.AttachmentOffset = App.Placement(App.Vector(0, 0, -10), App.Rotation())
sketch4.addGeometry(Part.LineSegment(App.Vector(-62, -22, 0), App.Vector(-38, -89, 0)), False)
sketch4.addGeometry(Part.LineSegment(App.Vector(-38, -89, 0), App.Vector(-120, -89, 0)), False)
sketch4.addGeometry(Part.LineSegment(App.Vector(-120, -89, 0), App.Vector(-120, 89, 0)), False)
sketch4.addGeometry(Part.LineSegment(App.Vector(-120, 89, 0), App.Vector(-38, 89, 0)), False)
sketch4.addGeometry(Part.LineSegment(App.Vector(-38, 89, 0), App.Vector(-62, 22, 0)), False)
sketch4.addGeometry(Part.ArcOfCircle(Part.Circle(App.Vector(0, 0, 0), App.Vector(0, 0, 1), 66), math.radians(160), math.radians(200)), False)
sketch4.addGeometry(Part.LineSegment(App.Vector(120, 89, 0), App.Vector(120, -89, 0)), False)
sketch4.addGeometry(Part.LineSegment(App.Vector(120, -89, 0), App.Vector(38, -89, 0)), False)
sketch4.addGeometry(Part.LineSegment(App.Vector(38, -89, 0), App.Vector(62, -22, 0)), False)
sketch4.addGeometry(Part.ArcOfCircle(Part.Circle(App.Vector(0, 0, 0), App.Vector(0, 0, 1), 66), math.radians(-20), math.radians(20)), False)
sketch4.addGeometry(Part.LineSegment(App.Vector(62, 22, 0), App.Vector(38, 89, 0)), False)
sketch4.addGeometry(Part.LineSegment(App.Vector(38, 89, 0), App.Vector(120, 89, 0)), False)
sketch4.addConstraint(Sketcher.Constraint("Coincident", 0, 2, 1, 1))
sketch4.addConstraint(Sketcher.Constraint("Coincident", 1, 2, 2, 1))
sketch4.addConstraint(Sketcher.Constraint("Coincident", 2, 2, 3, 1))
sketch4.addConstraint(Sketcher.Constraint("Coincident", 3, 2, 4, 1))
sketch4.addConstraint(Sketcher.Constraint("Tangent", 4, 2, 5, 1))
sketch4.addConstraint(Sketcher.Constraint("Tangent", 5, 2, 0, 1))
sketch4.addConstraint(Sketcher.Constraint("Coincident", 6, 2, 7, 1))
sketch4.addConstraint(Sketcher.Constraint("Coincident", 7, 2, 8, 1))
sketch4.addConstraint(Sketcher.Constraint("Tangent", 8, 2, 9, 1))
sketch4.addConstraint(Sketcher.Constraint("Tangent", 9, 2, 10, 1))
sketch4.addConstraint(Sketcher.Constraint("Coincident", 10, 2, 11, 1))
sketch4.addConstraint(Sketcher.Constraint("Coincident", 11, 2, 6, 1))
sketch4.addConstraint(Sketcher.Constraint("Horizontal", 1))
sketch4.addConstraint(Sketcher.Constraint("Vertical", 2))
sketch4.addConstraint(Sketcher.Constraint("Horizontal", 3))
sketch4.addConstraint(Sketcher.Constraint("Vertical", 6))
sketch4.addConstraint(Sketcher.Constraint("Horizontal", 7))
sketch4.addConstraint(Sketcher.Constraint("Horizontal", 11))
sketch4.addConstraint(Sketcher.Constraint("Coincident", 5, 3, -1, 1))
sketch4.addConstraint(Sketcher.Constraint("Coincident", 9, 3, -1, 1))
sketch4.addConstraint(Sketcher.Constraint("Equal", 5, 9))
sketch4.addConstraint(Sketcher.Constraint("Symmetric", 2, 2, 6, 2, -1, 1))
sketch4.addConstraint(Sketcher.Constraint("Symmetric", 0, 2, 10, 2, -1, 1))
sketch4.addConstraint(Sketcher.Constraint("Symmetric", 0, 2, 7, 2, -2))
sketch4.addConstraint(Sketcher.Constraint("Parallel", 4, 8))
sketch4.addConstraint(Sketcher.Constraint("Radius", 5, Q("66 mm")))
sketch4.addConstraint(Sketcher.Constraint("DistanceY", 2, 1, 2, 2, Q("178 mm")))
sketch4.addConstraint(Sketcher.Constraint("DistanceX", 1, 2, -1, 1, Q("120 mm")))
sketch4.addConstraint(Sketcher.Constraint("DistanceX", 1, 2, 1, 1, Q("81.516874 mm")))
sketch4.setExpression("Constraints[25]", "Params.sketch4_radius")
sketch4.setExpression("Constraints[26]", "Params.sketch4_height")
pocket3 = body.newObject("PartDesign::Pocket", "Pocket002")
pocket3.Profile = sketch4
pocket3.Type = "ThroughAll"
pocket3.Reversed = True
doc.recompute()

fillet = body.newObject("PartDesign::Fillet", "Fillet")
fillet.Base = (pocket3, edges_at(pocket3, [
    (-38.483, 5, -89),
    (-38.483, 5, 89),
    (38.483, 5, 89),
    (38.483, 5, -89),
]))
fillet.setExpression("Radius", "Params.fillet_radius")

# Sketch on XZ plane
sketch5 = body.newObject("Sketcher::SketchObject", "Sketch004")
sketch5.AttachmentSupport = (doc.getObject("XZ_Plane"), [""])
sketch5.MapMode = "FlatFace"
sketch5.AttachmentOffset = App.Placement(App.Vector(0, 0, -10), App.Rotation())
sketch5.addGeometry(Part.LineSegment(App.Vector(-9, -76.5, 0), App.Vector(-28.1, -76.5, 0)), False)
sketch5.addGeometry(Part.ArcOfCircle(Part.Circle(App.Vector(-28.1, -73.5, 0), App.Vector(0, 0, 1), 3), math.radians(-160), math.radians(-90)), False)
sketch5.addGeometry(Part.LineSegment(App.Vector(-30.9, -74.5, 0), App.Vector(-35.4, -61.8, 0)), False)
sketch5.addGeometry(Part.ArcOfCircle(Part.Circle(App.Vector(-32.5, -60.8, 0), App.Vector(0, 0, 1), 3), math.radians(62), math.radians(200)), False)
sketch5.addGeometry(Part.ArcOfCircle(Part.Circle(App.Vector(0, 0, 0), App.Vector(0, 0, 1), 66), math.radians(-118), math.radians(-97)), False)
sketch5.addGeometry(Part.ArcOfCircle(Part.Circle(App.Vector(-9, -68.4, 0), App.Vector(0, 0, 1), 3), math.radians(0), math.radians(83)), False)
sketch5.addGeometry(Part.LineSegment(App.Vector(-6, -68.4, 0), App.Vector(-6, -73.5, 0)), False)
sketch5.addGeometry(Part.ArcOfCircle(Part.Circle(App.Vector(-9, -73.5, 0), App.Vector(0, 0, 1), 3), math.radians(-90), math.radians(0)), False)
sketch5.addGeometry(Part.LineSegment(App.Vector(28.1, -76.5, 0), App.Vector(9, -76.5, 0)), False)
sketch5.addGeometry(Part.ArcOfCircle(Part.Circle(App.Vector(9, -73.5, 0), App.Vector(0, 0, 1), 3), math.radians(180), math.radians(270)), False)
sketch5.addGeometry(Part.LineSegment(App.Vector(6, -73.5, 0), App.Vector(6, -68.4, 0)), False)
sketch5.addGeometry(Part.ArcOfCircle(Part.Circle(App.Vector(9, -68.4, 0), App.Vector(0, 0, 1), 3), math.radians(97), math.radians(180)), False)
sketch5.addGeometry(Part.ArcOfCircle(Part.Circle(App.Vector(0, 0, 0), App.Vector(0, 0, 1), 66), math.radians(-83), math.radians(-62)), False)
sketch5.addGeometry(Part.ArcOfCircle(Part.Circle(App.Vector(32.5, -60.8, 0), App.Vector(0, 0, 1), 3), math.radians(-20), math.radians(118)), False)
sketch5.addGeometry(Part.LineSegment(App.Vector(35.4, -61.8, 0), App.Vector(30.9, -74.5, 0)), False)
sketch5.addGeometry(Part.ArcOfCircle(Part.Circle(App.Vector(28.1, -73.5, 0), App.Vector(0, 0, 1), 3), math.radians(-90), math.radians(-20)), False)
sketch5.addGeometry(Part.LineSegment(App.Vector(6, 68.4, 0), App.Vector(6, 73.5, 0)), False)
sketch5.addGeometry(Part.ArcOfCircle(Part.Circle(App.Vector(9, 73.5, 0), App.Vector(0, 0, 1), 3), math.radians(90), math.radians(180)), False)
sketch5.addGeometry(Part.LineSegment(App.Vector(9, 76.5, 0), App.Vector(28.1, 76.5, 0)), False)
sketch5.addGeometry(Part.ArcOfCircle(Part.Circle(App.Vector(28.1, 73.5, 0), App.Vector(0, 0, 1), 3), math.radians(20), math.radians(90)), False)
sketch5.addGeometry(Part.LineSegment(App.Vector(30.9, 74.5, 0), App.Vector(35.4, 61.8, 0)), False)
sketch5.addGeometry(Part.ArcOfCircle(Part.Circle(App.Vector(32.5, 60.8, 0), App.Vector(0, 0, 1), 3), math.radians(-118), math.radians(20)), False)
sketch5.addGeometry(Part.ArcOfCircle(Part.Circle(App.Vector(0, 0, 0), App.Vector(0, 0, 1), 66), math.radians(62), math.radians(83)), False)
sketch5.addGeometry(Part.ArcOfCircle(Part.Circle(App.Vector(9, 68.4, 0), App.Vector(0, 0, 1), 3), math.radians(180), math.radians(263)), False)
sketch5.addGeometry(Part.LineSegment(App.Vector(-28.1, 76.5, 0), App.Vector(-9, 76.5, 0)), False)
sketch5.addGeometry(Part.ArcOfCircle(Part.Circle(App.Vector(-9, 73.5, 0), App.Vector(0, 0, 1), 3), math.radians(0), math.radians(90)), False)
sketch5.addGeometry(Part.LineSegment(App.Vector(-6, 73.5, 0), App.Vector(-6, 68.4, 0)), False)
sketch5.addGeometry(Part.ArcOfCircle(Part.Circle(App.Vector(-9, 68.4, 0), App.Vector(0, 0, 1), 3), math.radians(-83), math.radians(0)), False)
sketch5.addGeometry(Part.ArcOfCircle(Part.Circle(App.Vector(0, 0, 0), App.Vector(0, 0, 1), 66), math.radians(97), math.radians(118)), False)
sketch5.addGeometry(Part.ArcOfCircle(Part.Circle(App.Vector(-32.5, 60.8, 0), App.Vector(0, 0, 1), 3), math.radians(160), math.radians(298)), False)
sketch5.addGeometry(Part.LineSegment(App.Vector(-35.4, 61.8, 0), App.Vector(-30.9, 74.5, 0)), False)
sketch5.addGeometry(Part.ArcOfCircle(Part.Circle(App.Vector(-28.1, 73.5, 0), App.Vector(0, 0, 1), 3), math.radians(90), math.radians(160)), False)
sketch5.addConstraint(Sketcher.Constraint("Tangent", 0, 2, 1, 2))
sketch5.addConstraint(Sketcher.Constraint("Tangent", 1, 1, 2, 1))
sketch5.addConstraint(Sketcher.Constraint("Tangent", 2, 2, 3, 2))
sketch5.addConstraint(Sketcher.Constraint("Tangent", 3, 1, 4, 1))
sketch5.addConstraint(Sketcher.Constraint("Tangent", 4, 2, 5, 2))
sketch5.addConstraint(Sketcher.Constraint("Tangent", 5, 1, 6, 1))
sketch5.addConstraint(Sketcher.Constraint("Tangent", 6, 2, 7, 2))
sketch5.addConstraint(Sketcher.Constraint("Tangent", 7, 1, 0, 1))
sketch5.addConstraint(Sketcher.Constraint("Tangent", 8, 2, 9, 2))
sketch5.addConstraint(Sketcher.Constraint("Tangent", 9, 1, 10, 1))
sketch5.addConstraint(Sketcher.Constraint("Tangent", 10, 2, 11, 2))
sketch5.addConstraint(Sketcher.Constraint("Tangent", 11, 1, 12, 1))
sketch5.addConstraint(Sketcher.Constraint("Tangent", 12, 2, 13, 2))
sketch5.addConstraint(Sketcher.Constraint("Tangent", 13, 1, 14, 1))
sketch5.addConstraint(Sketcher.Constraint("Tangent", 14, 2, 15, 2))
sketch5.addConstraint(Sketcher.Constraint("Tangent", 15, 1, 8, 1))
sketch5.addConstraint(Sketcher.Constraint("Tangent", 16, 2, 17, 2))
sketch5.addConstraint(Sketcher.Constraint("Tangent", 17, 1, 18, 1))
sketch5.addConstraint(Sketcher.Constraint("Tangent", 18, 2, 19, 2))
sketch5.addConstraint(Sketcher.Constraint("Tangent", 19, 1, 20, 1))
sketch5.addConstraint(Sketcher.Constraint("Tangent", 20, 2, 21, 2))
sketch5.addConstraint(Sketcher.Constraint("Tangent", 21, 1, 22, 1))
sketch5.addConstraint(Sketcher.Constraint("Tangent", 22, 2, 23, 2))
sketch5.addConstraint(Sketcher.Constraint("Tangent", 23, 1, 16, 1))
sketch5.addConstraint(Sketcher.Constraint("Tangent", 24, 2, 25, 2))
sketch5.addConstraint(Sketcher.Constraint("Tangent", 25, 1, 26, 1))
sketch5.addConstraint(Sketcher.Constraint("Tangent", 26, 2, 27, 2))
sketch5.addConstraint(Sketcher.Constraint("Tangent", 27, 1, 28, 1))
sketch5.addConstraint(Sketcher.Constraint("Tangent", 28, 2, 29, 2))
sketch5.addConstraint(Sketcher.Constraint("Tangent", 29, 1, 30, 1))
sketch5.addConstraint(Sketcher.Constraint("Tangent", 30, 2, 31, 2))
sketch5.addConstraint(Sketcher.Constraint("Tangent", 31, 1, 24, 1))
sketch5.addConstraint(Sketcher.Constraint("Horizontal", 0))
sketch5.addConstraint(Sketcher.Constraint("Vertical", 6))
sketch5.addConstraint(Sketcher.Constraint("Horizontal", 8))
sketch5.addConstraint(Sketcher.Constraint("Vertical", 10))
sketch5.addConstraint(Sketcher.Constraint("Vertical", 16))
sketch5.addConstraint(Sketcher.Constraint("Horizontal", 18))
sketch5.addConstraint(Sketcher.Constraint("Horizontal", 24))
sketch5.addConstraint(Sketcher.Constraint("Vertical", 26))
sketch5.addConstraint(Sketcher.Constraint("Coincident", 4, 3, -1, 1))
sketch5.addConstraint(Sketcher.Constraint("Coincident", 12, 3, -1, 1))
sketch5.addConstraint(Sketcher.Constraint("Coincident", 22, 3, -1, 1))
sketch5.addConstraint(Sketcher.Constraint("Coincident", 28, 3, -1, 1))
sketch5.addConstraint(Sketcher.Constraint("Equal", 1, 3))
sketch5.addConstraint(Sketcher.Constraint("Equal", 3, 5))
sketch5.addConstraint(Sketcher.Constraint("Equal", 5, 7))
sketch5.addConstraint(Sketcher.Constraint("Equal", 7, 9))
sketch5.addConstraint(Sketcher.Constraint("Equal", 9, 11))
sketch5.addConstraint(Sketcher.Constraint("Equal", 4, 12))
sketch5.addConstraint(Sketcher.Constraint("Equal", 11, 13))
sketch5.addConstraint(Sketcher.Constraint("Equal", 13, 15))
sketch5.addConstraint(Sketcher.Constraint("Equal", 15, 17))
sketch5.addConstraint(Sketcher.Constraint("Equal", 17, 19))
sketch5.addConstraint(Sketcher.Constraint("Equal", 19, 21))
sketch5.addConstraint(Sketcher.Constraint("Equal", 12, 22))
sketch5.addConstraint(Sketcher.Constraint("Equal", 21, 23))
sketch5.addConstraint(Sketcher.Constraint("Equal", 23, 25))
sketch5.addConstraint(Sketcher.Constraint("Equal", 25, 27))
sketch5.addConstraint(Sketcher.Constraint("Equal", 22, 28))
sketch5.addConstraint(Sketcher.Constraint("Equal", 27, 29))
sketch5.addConstraint(Sketcher.Constraint("Equal", 29, 31))
sketch5.addConstraint(Sketcher.Constraint("Symmetric", 7, 3, 17, 3, -1, 1))
sketch5.addConstraint(Sketcher.Constraint("Symmetric", 9, 3, 25, 3, -1, 1))
sketch5.addConstraint(Sketcher.Constraint("Symmetric", 1, 1, 19, 1, -1, 1))
sketch5.addConstraint(Sketcher.Constraint("Symmetric", 13, 1, 29, 1, -1, 1))
sketch5.addConstraint(Sketcher.Constraint("Symmetric", 7, 3, 9, 3, -2))
sketch5.addConstraint(Sketcher.Constraint("Symmetric", 2, 2, 13, 1, -2))
sketch5.addConstraint(Sketcher.Constraint("Radius", 1, Q("3 mm")))
sketch5.addConstraint(Sketcher.Constraint("Radius", 4, Q("66 mm")))
sketch5.addConstraint(Sketcher.Constraint("DistanceX", 5, 3, -1, 1, Q("9 mm")))
sketch5.addConstraint(Sketcher.Constraint("DistanceY", 1, 3, -1, 1, Q("73.5 mm")))
sketch5.addConstraint(Sketcher.Constraint("DistanceX", 1, 1, -1, 1, Q("30.8895 mm")))
sketch5.addConstraint(Sketcher.Constraint("DistanceX", 11, 1, 13, 1, Q("26.766601 mm")))
sketch5.setExpression("Constraints[68]", "Params.sketch5_radius")
sketch5.setExpression("Constraints[69]", "Params.sketch5_radius2")
pocket4 = body.newObject("PartDesign::Pocket", "Pocket003")
pocket4.Profile = sketch5
pocket4.Type = "ThroughAll"
pocket4.Reversed = True
doc.recompute()

chamfer = body.newObject("PartDesign::Chamfer", "Chamfer")
chamfer.Base = (pocket4, edges_at(pocket4, [
    (-1.6, 10, -56),
    (26.4, 10, -48.497),
    (26.4, 10, 48.497),
    (-1.6, 10, 56),
    (-29.6, 10, 48.497),
    (-29.6, 10, -48.497),
]))
chamfer.setExpression("Size", "Params.chamfer_size")

doc.recompute()
